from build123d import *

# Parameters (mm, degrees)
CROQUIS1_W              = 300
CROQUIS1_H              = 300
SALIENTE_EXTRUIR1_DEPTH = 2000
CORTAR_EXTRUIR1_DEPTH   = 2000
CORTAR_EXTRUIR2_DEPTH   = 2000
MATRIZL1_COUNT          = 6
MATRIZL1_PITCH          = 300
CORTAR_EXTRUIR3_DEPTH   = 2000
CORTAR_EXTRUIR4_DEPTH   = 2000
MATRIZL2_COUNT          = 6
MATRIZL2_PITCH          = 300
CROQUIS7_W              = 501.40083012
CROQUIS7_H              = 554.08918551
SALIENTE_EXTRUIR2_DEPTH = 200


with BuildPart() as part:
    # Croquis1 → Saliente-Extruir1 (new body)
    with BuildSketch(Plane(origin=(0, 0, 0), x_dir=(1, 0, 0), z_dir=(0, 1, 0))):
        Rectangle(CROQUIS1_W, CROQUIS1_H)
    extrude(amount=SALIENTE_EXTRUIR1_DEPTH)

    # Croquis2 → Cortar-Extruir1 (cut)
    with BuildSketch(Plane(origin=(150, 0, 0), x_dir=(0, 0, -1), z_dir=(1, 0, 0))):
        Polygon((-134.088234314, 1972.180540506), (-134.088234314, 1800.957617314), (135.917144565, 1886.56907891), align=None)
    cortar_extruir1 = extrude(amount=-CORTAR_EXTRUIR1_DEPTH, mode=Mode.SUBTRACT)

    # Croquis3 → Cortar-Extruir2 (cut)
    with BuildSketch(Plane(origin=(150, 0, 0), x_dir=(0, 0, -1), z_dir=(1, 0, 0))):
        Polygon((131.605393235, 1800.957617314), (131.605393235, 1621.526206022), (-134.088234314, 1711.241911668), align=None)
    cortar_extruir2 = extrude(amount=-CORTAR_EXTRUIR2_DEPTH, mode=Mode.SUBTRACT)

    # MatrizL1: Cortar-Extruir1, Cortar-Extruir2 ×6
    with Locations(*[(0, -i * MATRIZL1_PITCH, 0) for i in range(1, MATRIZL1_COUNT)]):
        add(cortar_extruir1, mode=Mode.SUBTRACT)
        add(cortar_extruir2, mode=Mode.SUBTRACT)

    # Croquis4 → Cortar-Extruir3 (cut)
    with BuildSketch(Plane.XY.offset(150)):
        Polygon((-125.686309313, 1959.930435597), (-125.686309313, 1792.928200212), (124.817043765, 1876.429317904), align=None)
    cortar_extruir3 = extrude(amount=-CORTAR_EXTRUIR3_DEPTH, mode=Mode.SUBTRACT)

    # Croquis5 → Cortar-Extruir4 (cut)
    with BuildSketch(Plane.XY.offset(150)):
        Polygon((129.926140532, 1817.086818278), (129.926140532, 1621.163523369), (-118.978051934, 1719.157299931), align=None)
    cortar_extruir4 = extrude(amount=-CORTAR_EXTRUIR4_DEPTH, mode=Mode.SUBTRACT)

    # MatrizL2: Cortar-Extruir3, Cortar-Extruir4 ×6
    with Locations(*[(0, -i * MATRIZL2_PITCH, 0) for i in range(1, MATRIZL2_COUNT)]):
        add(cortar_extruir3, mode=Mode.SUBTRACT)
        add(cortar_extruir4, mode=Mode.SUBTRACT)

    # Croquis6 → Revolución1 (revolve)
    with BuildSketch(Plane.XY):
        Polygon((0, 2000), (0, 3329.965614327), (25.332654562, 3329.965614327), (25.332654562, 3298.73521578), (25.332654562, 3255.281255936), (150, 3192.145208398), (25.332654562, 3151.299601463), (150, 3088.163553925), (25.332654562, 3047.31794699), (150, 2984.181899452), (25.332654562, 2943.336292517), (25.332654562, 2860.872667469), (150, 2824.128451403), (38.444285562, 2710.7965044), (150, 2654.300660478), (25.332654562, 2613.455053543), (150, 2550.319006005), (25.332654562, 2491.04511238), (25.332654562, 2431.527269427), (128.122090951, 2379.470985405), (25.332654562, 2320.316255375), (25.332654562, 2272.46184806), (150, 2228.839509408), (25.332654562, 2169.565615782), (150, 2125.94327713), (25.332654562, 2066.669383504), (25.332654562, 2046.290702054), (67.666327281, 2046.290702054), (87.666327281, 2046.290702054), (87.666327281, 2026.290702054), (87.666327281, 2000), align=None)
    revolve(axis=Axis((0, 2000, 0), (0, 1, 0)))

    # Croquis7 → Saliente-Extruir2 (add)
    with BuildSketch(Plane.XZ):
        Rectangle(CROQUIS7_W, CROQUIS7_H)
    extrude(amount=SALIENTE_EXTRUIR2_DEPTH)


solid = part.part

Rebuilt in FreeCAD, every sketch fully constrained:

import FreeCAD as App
import Part
import Sketcher
Q = App.Units.Quantity

doc = App.newDocument("Part")
params = doc.addObject("Spreadsheet::Sheet", "Params")
for row, (alias, value) in enumerate([
    ("sketch1_width", "300 mm"),
    ("pad1_length", "2000 mm"),
    ("pocket1_length", "2000 mm"),
    ("pocket2_length", "2000 mm"),
    ("linearpattern_pitch", "300 mm"),
    ("pocket3_length", "2000 mm"),
    ("pocket4_length", "2000 mm"),
    ("linearpattern2_pitch", "300 mm"),
    ("revolution_angle", "360 deg"),
    ("pad2_length", "200 mm"),
], start=1):
    params.set(f"A{row}", alias)
    params.set(f"B{row}", "=" + value)
    params.setAlias(f"B{row}", alias)

body = doc.addObject("PartDesign::Body", "Body")

sketch1 = body.newObject("Sketcher::SketchObject", "Sketch")
sketch1.AttachmentSupport = (doc.getObject("XZ_Plane"), [""])
sketch1.MapMode = "FlatFace"
sketch1.addGeometry([
    Part.LineSegment(App.Vector(-150, -150, 0), App.Vector(-150, 150, 0)),
    Part.LineSegment(App.Vector(-150, 150, 0), App.Vector(150, 150, 0)),
    Part.LineSegment(App.Vector(150, 150, 0), App.Vector(150, -150, 0)),
    Part.LineSegment(App.Vector(150, -150, 0), App.Vector(-150, -150, 0)),
], False)
sketch1.addConstraint([
    Sketcher.Constraint("Coincident", 0, 2, 1, 1),
    Sketcher.Constraint("Coincident", 1, 2, 2, 1),
    Sketcher.Constraint("Coincident", 2, 2, 3, 1),
    Sketcher.Constraint("Coincident", 3, 2, 0, 1),
    Sketcher.Constraint("Vertical", 0),
    Sketcher.Constraint("Horizontal", 1),
    Sketcher.Constraint("Vertical", 2),
    Sketcher.Constraint("Horizontal", 3),
    Sketcher.Constraint("Symmetric", 0, 2, 2, 2, -1, 1),
    Sketcher.Constraint("Equal", 3, 0),
    Sketcher.Constraint("DistanceX", 1, 1, 1, 2, Q("300 mm")),
])
sketch1.setExpression("Constraints[10]", "Params.sketch1_width")
pad1 = body.newObject("PartDesign::Pad", "Pad")
pad1.Profile = sketch1
pad1.setExpression("Length", "Params.pad1_length")
pad1.Reversed = True

sketch2 = body.newObject("Sketcher::SketchObject", "Sketch001")
sketch2.AttachmentSupport = (doc.getObject("YZ_Plane"), [""])
sketch2.MapMode = "FlatFace"
sketch2.AttachmentOffset = App.Placement(App.Vector(0, 0, 150), App.Rotation())
sketch2.addGeometry([
    Part.LineSegment(App.Vector(1972, 134, 0), App.Vector(1801, 134, 0)),
    Part.LineSegment(App.Vector(1801, 134, 0), App.Vector(1887, -136, 0)),
    Part.LineSegment(App.Vector(1887, -136, 0), App.Vector(1972, 134, 0)),
], False)
sketch2.addConstraint([
    Sketcher.Constraint("Coincident", 0, 2, 1, 1),
    Sketcher.Constraint("Coincident", 1, 2, 2, 1),
    Sketcher.Constraint("Coincident", 2, 2, 0, 1),
    Sketcher.Constraint("Horizontal", 0),
    Sketcher.Constraint("Equal", 1, 2),
    Sketcher.Constraint("Distance", 1, Q("283.252938 mm")),
    Sketcher.Constraint("DistanceX", 0, 2, 0, 1, Q("171.222923 mm")),
    Sketcher.Constraint("DistanceX", -1, 1, 1, 2, Q("1886.569079 mm")),
    Sketcher.Constraint("DistanceY", -1, 1, 0, 2, Q("134.088234 mm")),
])
pocket1 = body.newObject("PartDesign::Pocket", "Pocket")
pocket1.Profile = sketch2
pocket1.setExpression("Length", "Params.pocket1_length")

sketch3 = body.newObject("Sketcher::SketchObject", "Sketch002")
sketch3.AttachmentSupport = (doc.getObject("YZ_Plane"), [""])
sketch3.MapMode = "FlatFace"
sketch3.AttachmentOffset = App.Placement(App.Vector(0, 0, 150), App.Rotation())
sketch3.addGeometry([
    Part.LineSegment(App.Vector(1622, -132, 0), App.Vector(1801, -132, 0)),
    Part.LineSegment(App.Vector(1801, -132, 0), App.Vector(1711, 134, 0)),
    Part.LineSegment(App.Vector(1711, 134, 0), App.Vector(1622, -132, 0)),
], False)
sketch3.addConstraint([
    Sketcher.Constraint("Coincident", 0, 2, 1, 1),
    Sketcher.Constraint("Coincident", 1, 2, 2, 1),
    Sketcher.Constraint("Coincident", 2, 2, 0, 1),
    Sketcher.Constraint("Horizontal", 0),
    Sketcher.Constraint("Equal", 1, 2),
    Sketcher.Constraint("DistanceX", 0, 1, 0, 2, Q("179.431411 mm")),
    Sketcher.Constraint("Distance", 1, Q("280.431831 mm")),
    Sketcher.Constraint("DistanceX", -1, 1, 1, 2, Q("1711.241912 mm")),
    Sketcher.Constraint("DistanceY", 0, 2, -1, 1, Q("131.605393 mm")),
])
pocket2 = body.newObject("PartDesign::Pocket", "Pocket001")
pocket2.Profile = sketch3
pocket2.setExpression("Length", "Params.pocket2_length")
doc.recompute()

linearpattern = body.newObject("PartDesign::LinearPattern", "LinearPattern")
linearpattern.Originals = [pocket1, pocket2]
linearpattern.Direction = (doc.getObject("Y_Axis"), [""])
linearpattern.Mode = "offset"
linearpattern.setExpression("Offset", "Params.linearpattern_pitch")
linearpattern.Occurrences = 6
linearpattern.Reversed = True
body.Tip = linearpattern

sketch4 = body.newObject("Sketcher::SketchObject", "Sketch003")
sketch4.AttachmentSupport = (doc.getObject("XY_Plane"), [""])
sketch4.MapMode = "FlatFace"
sketch4.AttachmentOffset = App.Placement(App.Vector(0, 0, 150), App.Rotation())
sketch4.addGeometry([
    Part.LineSegment(App.Vector(-126, 1960, 0), App.Vector(-126, 1793, 0)),
    Part.LineSegment(App.Vector(-126, 1793, 0), App.Vector(125, 1876, 0)),
    Part.LineSegment(App.Vector(125, 1876, 0), App.Vector(-126, 1960, 0)),
], False)
sketch4.addConstraint([
    Sketcher.Constraint("Coincident", 0, 2, 1, 1),
    Sketcher.Constraint("Coincident", 1, 2, 2, 1),
    Sketcher.Constraint("Coincident", 2, 2, 0, 1),
    Sketcher.Constraint("Vertical", 0),
    Sketcher.Constraint("Equal", 1, 2),
    Sketcher.Constraint("DistanceY", -1, 1, 0, 2, Q("1792.9282 mm")),
    Sketcher.Constraint("Distance", 1, Q("264.053719 mm")),
    Sketcher.Constraint("DistanceY", 0, 2, 0, 1, Q("167.002235 mm")),
    Sketcher.Constraint("DistanceX", 0, 2, -1, 1, Q("125.686309 mm")),
])
pocket3 = body.newObject("PartDesign::Pocket", "Pocket002")
pocket3.Profile = sketch4
pocket3.setExpression("Length", "Params.pocket3_length")

sketch5 = body.newObject("Sketcher::SketchObject", "Sketch004")
sketch5.AttachmentSupport = (doc.getObject("XY_Plane"), [""])
sketch5.MapMode = "FlatFace"
sketch5.AttachmentOffset = App.Placement(App.Vector(0, 0, 150), App.Rotation())
sketch5.addGeometry([
    Part.LineSegment(App.Vector(130, 1621, 0), App.Vector(130, 1817, 0)),
    Part.LineSegment(App.Vector(130, 1817, 0), App.Vector(-119, 1719, 0)),
    Part.LineSegment(App.Vector(-119, 1719, 0), App.Vector(130, 1621, 0)),
], False)
sketch5.addConstraint([
    Sketcher.Constraint("Coincident", 0, 2, 1, 1),
    Sketcher.Constraint("Coincident", 1, 2, 2, 1),
    Sketcher.Constraint("Coincident", 2, 2, 0, 1),
    Sketcher.Constraint("Vertical", 0),
    Sketcher.Constraint("DistanceY", -1, 1, 1, 2, Q("1719.1573 mm")),
    Sketcher.Constraint("DistanceY", 0, 1, 0, 2, Q("195.923295 mm")),
    Sketcher.Constraint("DistanceX", -1, 1, 0, 2, Q("129.926141 mm")),
    Sketcher.Constraint("DistanceY", -1, 1, 0, 2, Q("1817.086818 mm")),
    Sketcher.Constraint("DistanceX", 1, 2, -1, 1, Q("118.978052 mm")),
])
pocket4 = body.newObject("PartDesign::Pocket", "Pocket003")
pocket4.Profile = sketch5
pocket4.setExpression("Length", "Params.pocket4_length")
doc.recompute()

linearpattern2 = body.newObject("PartDesign::LinearPattern", "LinearPattern001")
linearpattern2.Originals = [pocket3, pocket4]
linearpattern2.Direction = (doc.getObject("Y_Axis"), [""])
linearpattern2.Mode = "offset"
linearpattern2.setExpression("Offset", "Params.linearpattern2_pitch")
linearpattern2.Occurrences = 6
linearpattern2.Reversed = True
body.Tip = linearpattern2

sketch6 = body.newObject("Sketcher::SketchObject", "Sketch005")
sketch6.AttachmentSupport = (doc.getObject("XY_Plane"), [""])
sketch6.MapMode = "FlatFace"
sketch6.addGeometry([
    Part.LineSegment(App.Vector(0, 3330, 0), App.Vector(0, 2000, 0)),
    Part.LineSegment(App.Vector(0, 2000, 0), App.Vector(88, 2000, 0)),
    Part.LineSegment(App.Vector(88, 2000, 0), App.Vector(88, 2046, 0)),
    Part.LineSegment(App.Vector(88, 2046, 0), App.Vector(25, 2046, 0)),
    Part.LineSegment(App.Vector(25, 2046, 0), App.Vector(25, 2067, 0)),
    Part.LineSegment(App.Vector(25, 2067, 0), App.Vector(150, 2126, 0)),
    Part.LineSegment(App.Vector(150, 2126, 0), App.Vector(25, 2170, 0)),
    Part.LineSegment(App.Vector(25, 2170, 0), App.Vector(150, 2229, 0)),
    Part.LineSegment(App.Vector(150, 2229, 0), App.Vector(25, 2272, 0)),
    Part.LineSegment(App.Vector(25, 2272, 0), App.Vector(25, 2320, 0)),
    Part.LineSegment(App.Vector(25, 2320, 0), App.Vector(128, 2379, 0)),
    Part.LineSegment(App.Vector(128, 2379, 0), App.Vector(25, 2432, 0)),
    Part.LineSegment(App.Vector(25, 2432, 0), App.Vector(25, 2491, 0)),
    Part.LineSegment(App.Vector(25, 2491, 0), App.Vector(150, 2550, 0)),
    Part.LineSegment(App.Vector(150, 2550, 0), App.Vector(25, 2613, 0)),
    Part.LineSegment(App.Vector(25, 2613, 0), App.Vector(150, 2654, 0)),
    Part.LineSegment(App.Vector(150, 2654, 0), App.Vector(38, 2711, 0)),
    Part.LineSegment(App.Vector(38, 2711, 0), App.Vector(150, 2824, 0)),
    Part.LineSegment(App.Vector(150, 2824, 0), App.Vector(25, 2861, 0)),
    Part.LineSegment(App.Vector(25, 2861, 0), App.Vector(25, 2943, 0)),
    Part.LineSegment(App.Vector(25, 2943, 0), App.Vector(150, 2984, 0)),
    Part.LineSegment(App.Vector(150, 2984, 0), App.Vector(25, 3047, 0)),
    Part.LineSegment(App.Vector(25, 3047, 0), App.Vector(150, 3088, 0)),
    Part.LineSegment(App.Vector(150, 3088, 0), App.Vector(25, 3151, 0)),
    Part.LineSegment(App.Vector(25, 3151, 0), App.Vector(150, 3192, 0)),
    Part.LineSegment(App.Vector(150, 3192, 0), App.Vector(25, 3255, 0)),
    Part.LineSegment(App.Vector(25, 3255, 0), App.Vector(25, 3330, 0)),
    Part.LineSegment(App.Vector(25, 3330, 0), App.Vector(0, 3330, 0)),
], False)
sketch6.addConstraint([
    Sketcher.Constraint("Coincident", 0, 2, 1, 1),
    Sketcher.Constraint("Coincident", 1, 2, 2, 1),
    Sketcher.Constraint("Coincident", 2, 2, 3, 1),
    Sketcher.Constraint("Coincident", 3, 2, 4, 1),
    Sketcher.Constraint("Coincident", 4, 2, 5, 1),
    Sketcher.Constraint("Coincident", 5, 2, 6, 1),
    Sketcher.Constraint("Coincident", 6, 2, 7, 1),
    Sketcher.Constraint("Coincident", 7, 2, 8, 1),
    Sketcher.Constraint("Coincident", 8, 2, 9, 1),
    Sketcher.Constraint("Coincident", 9, 2, 10, 1),
    Sketcher.Constraint("Coincident", 10, 2, 11, 1),
    Sketcher.Constraint("Coincident", 11, 2, 12, 1),
    Sketcher.Constraint("Coincident", 12, 2, 13, 1),
    Sketcher.Constraint("Coincident", 13, 2, 14, 1),
    Sketcher.Constraint("Coincident", 14, 2, 15, 1),
    Sketcher.Constraint("Coincident", 15, 2, 16, 1),
    Sketcher.Constraint("Coincident", 16, 2, 17, 1),
    Sketcher.Constraint("Coincident", 17, 2, 18, 1),
    Sketcher.Constraint("Coincident", 18, 2, 19, 1),
    Sketcher.Constraint("Coincident", 19, 2, 20, 1),
    Sketcher.Constraint("Coincident", 20, 2, 21, 1),
    Sketcher.Constraint("Coincident", 21, 2, 22, 1),
    Sketcher.Constraint("Coincident", 22, 2, 23, 1),
    Sketcher.Constraint("Coincident", 23, 2, 24, 1),
    Sketcher.Constraint("Coincident", 24, 2, 25, 1),
    Sketcher.Constraint("Coincident", 25, 2, 26, 1),
    Sketcher.Constraint("Coincident", 26, 2, 27, 1),
    Sketcher.Constraint("Coincident", 27, 2, 0, 1),
    Sketcher.Constraint("Vertical", 0),
    Sketcher.Constraint("Horizontal", 1),
    Sketcher.Constraint("Vertical", 2),
    Sketcher.Constraint("Horizontal", 3),
    Sketcher.Constraint("Vertical", 4),
    Sketcher.Constraint("Vertical", 9),
    Sketcher.Constraint("Vertical", 12),
    Sketcher.Constraint("Vertical", 19),
    Sketcher.Constraint("Vertical", 26),
    Sketcher.Constraint("Horizontal", 27),
    Sketcher.Constraint("PointOnObject", 0, 2, -2),
    Sketcher.Constraint("Parallel", 5, 7),
    Sketcher.Constraint("Parallel", 6, 8),
    Sketcher.Constraint("Parallel", 7, 13),
    Sketcher.Constraint("Parallel", 11, 14),
    Sketcher.Constraint("Parallel", 14, 16),
    Sketcher.Constraint("Parallel", 15, 20),
    Sketcher.Constraint("Parallel", 16, 21),
    Sketcher.Constraint("Parallel", 20, 22),
    Sketcher.Constraint("Parallel", 21, 23),
    Sketcher.Constraint("Parallel", 22, 24),
    Sketcher.Constraint("Parallel", 23, 25),
    Sketcher.Constraint("Vertical", 4, 2, 6, 2),
    Sketcher.Constraint("Vertical", 5, 2, 7, 2),
    Sketcher.Constraint("Vertical", 6, 2, 8, 2),
    Sketcher.Constraint("Vertical", 9, 2, 11, 2),
    Sketcher.Constraint("Vertical", 7, 2, 13, 2),
    Sketcher.Constraint("Vertical", 12, 2, 14, 2),
    Sketcher.Constraint("Vertical", 13, 2, 15, 2),
    Sketcher.Constraint("Vertical", 15, 2, 17, 2),
    Sketcher.Constraint("Vertical", 14, 2, 18, 2),
    Sketcher.Constraint("Vertical", 17, 2, 20, 2),
    Sketcher.Constraint("Vertical", 19, 2, 21, 2),
    Sketcher.Constraint("Vertical", 20, 2, 22, 2),
    Sketcher.Constraint("Vertical", 21, 2, 23, 2),
    Sketcher.Constraint("Vertical", 22, 2, 24, 2),
    Sketcher.Constraint("Vertical", 23, 2, 25, 2),
    Sketcher.Constraint("DistanceY", -1, 1, 0, 2, Q("2000 mm")),
    Sketcher.Constraint("DistanceX", -1, 1, 5, 2, Q("150 mm")),
    Sketcher.Constraint("DistanceY", 4, 1, 4, 2, Q("20.378681 mm")),
    Sketcher.Constraint("DistanceY", 26, 1, 26, 2, Q("74.684358 mm")),
    Sketcher.Constraint("DistanceY", -1, 1, 20, 2, Q("2984.181899 mm")),
    Sketcher.Constraint("DistanceY", -1, 1, 23, 2, Q("3151.299601 mm")),
    Sketcher.Constraint("DistanceY", 9, 2, 14, 2, Q("293.138798 mm")),
    Sketcher.Constraint("DistanceY", 13, 2, 16, 2, Q("160.477498 mm")),
    Sketcher.Constraint("Distance", 17, Q("159.02455 mm")),
    Sketcher.Constraint("Distance", 18, Q("129.969552 mm")),
    Sketcher.Constraint("DistanceX", 1, 1, 1, 2, Q("87.666327 mm")),
    Sketcher.Constraint("DistanceX", 3, 2, 3, 1, Q("62.333673 mm")),
    Sketcher.Constraint("DistanceY", 0, 2, 0, 1, Q("1329.965614 mm")),
    Sketcher.Constraint("DistanceY", 2, 1, 2, 2, Q("46.290702 mm")),
    Sketcher.Constraint("DistanceY", 9, 1, 9, 2, Q("47.854407 mm")),
    Sketcher.Constraint("DistanceY", 12, 1, 12, 2, Q("59.517843 mm")),
    Sketcher.Constraint("DistanceY", 19, 1, 19, 2, Q("82.463625 mm")),
    Sketcher.Constraint("DistanceY", -1, 1, 7, 2, Q("2228.839509 mm")),
    Sketcher.Constraint("DistanceX", -1, 1, 10, 2, Q("128.122091 mm")),
])
revolution = body.newObject("PartDesign::Revolution", "Revolution")
revolution.Profile = sketch6
revolution.ReferenceAxis = (sketch6, ["V_Axis"])
revolution.setExpression("Angle", "Params.revolution_angle")

sketch7 = body.newObject("Sketcher::SketchObject", "Sketch006")
sketch7.AttachmentSupport = (doc.getObject("XZ_Plane"), [""])
sketch7.MapMode = "FlatFace"
sketch7.addGeometry([
    Part.LineSegment(App.Vector(-251, 277, 0), App.Vector(-251, -277, 0)),
    Part.LineSegment(App.Vector(-251, -277, 0), App.Vector(251, -277, 0)),
    Part.LineSegment(App.Vector(251, -277, 0), App.Vector(251, 277, 0)),
    Part.LineSegment(App.Vector(251, 277, 0), App.Vector(-251, 277, 0)),
], False)
sketch7.addConstraint([
    Sketcher.Constraint("Coincident", 0, 2, 1, 1),
    Sketcher.Constraint("Coincident", 1, 2, 2, 1),
    Sketcher.Constraint("Coincident", 2, 2, 3, 1),
    Sketcher.Constraint("Coincident", 3, 2, 0, 1),
    Sketcher.Constraint("Vertical", 0),
    Sketcher.Constraint("Horizontal", 1),
    Sketcher.Constraint("Vertical", 2),
    Sketcher.Constraint("Horizontal", 3),
    Sketcher.Constraint("Symmetric", 0, 2, 2, 2, -1, 1),
    Sketcher.Constraint("DistanceX", 1, 1, 1, 2, Q("501.40083 mm")),
    Sketcher.Constraint("DistanceY", 0, 2, 0, 1, Q("554.089186 mm")),
])
pad2 = body.newObject("PartDesign::Pad", "Pad001")
pad2.Profile = sketch7
pad2.setExpression("Length", "Params.pad2_length")

doc.recompute()
